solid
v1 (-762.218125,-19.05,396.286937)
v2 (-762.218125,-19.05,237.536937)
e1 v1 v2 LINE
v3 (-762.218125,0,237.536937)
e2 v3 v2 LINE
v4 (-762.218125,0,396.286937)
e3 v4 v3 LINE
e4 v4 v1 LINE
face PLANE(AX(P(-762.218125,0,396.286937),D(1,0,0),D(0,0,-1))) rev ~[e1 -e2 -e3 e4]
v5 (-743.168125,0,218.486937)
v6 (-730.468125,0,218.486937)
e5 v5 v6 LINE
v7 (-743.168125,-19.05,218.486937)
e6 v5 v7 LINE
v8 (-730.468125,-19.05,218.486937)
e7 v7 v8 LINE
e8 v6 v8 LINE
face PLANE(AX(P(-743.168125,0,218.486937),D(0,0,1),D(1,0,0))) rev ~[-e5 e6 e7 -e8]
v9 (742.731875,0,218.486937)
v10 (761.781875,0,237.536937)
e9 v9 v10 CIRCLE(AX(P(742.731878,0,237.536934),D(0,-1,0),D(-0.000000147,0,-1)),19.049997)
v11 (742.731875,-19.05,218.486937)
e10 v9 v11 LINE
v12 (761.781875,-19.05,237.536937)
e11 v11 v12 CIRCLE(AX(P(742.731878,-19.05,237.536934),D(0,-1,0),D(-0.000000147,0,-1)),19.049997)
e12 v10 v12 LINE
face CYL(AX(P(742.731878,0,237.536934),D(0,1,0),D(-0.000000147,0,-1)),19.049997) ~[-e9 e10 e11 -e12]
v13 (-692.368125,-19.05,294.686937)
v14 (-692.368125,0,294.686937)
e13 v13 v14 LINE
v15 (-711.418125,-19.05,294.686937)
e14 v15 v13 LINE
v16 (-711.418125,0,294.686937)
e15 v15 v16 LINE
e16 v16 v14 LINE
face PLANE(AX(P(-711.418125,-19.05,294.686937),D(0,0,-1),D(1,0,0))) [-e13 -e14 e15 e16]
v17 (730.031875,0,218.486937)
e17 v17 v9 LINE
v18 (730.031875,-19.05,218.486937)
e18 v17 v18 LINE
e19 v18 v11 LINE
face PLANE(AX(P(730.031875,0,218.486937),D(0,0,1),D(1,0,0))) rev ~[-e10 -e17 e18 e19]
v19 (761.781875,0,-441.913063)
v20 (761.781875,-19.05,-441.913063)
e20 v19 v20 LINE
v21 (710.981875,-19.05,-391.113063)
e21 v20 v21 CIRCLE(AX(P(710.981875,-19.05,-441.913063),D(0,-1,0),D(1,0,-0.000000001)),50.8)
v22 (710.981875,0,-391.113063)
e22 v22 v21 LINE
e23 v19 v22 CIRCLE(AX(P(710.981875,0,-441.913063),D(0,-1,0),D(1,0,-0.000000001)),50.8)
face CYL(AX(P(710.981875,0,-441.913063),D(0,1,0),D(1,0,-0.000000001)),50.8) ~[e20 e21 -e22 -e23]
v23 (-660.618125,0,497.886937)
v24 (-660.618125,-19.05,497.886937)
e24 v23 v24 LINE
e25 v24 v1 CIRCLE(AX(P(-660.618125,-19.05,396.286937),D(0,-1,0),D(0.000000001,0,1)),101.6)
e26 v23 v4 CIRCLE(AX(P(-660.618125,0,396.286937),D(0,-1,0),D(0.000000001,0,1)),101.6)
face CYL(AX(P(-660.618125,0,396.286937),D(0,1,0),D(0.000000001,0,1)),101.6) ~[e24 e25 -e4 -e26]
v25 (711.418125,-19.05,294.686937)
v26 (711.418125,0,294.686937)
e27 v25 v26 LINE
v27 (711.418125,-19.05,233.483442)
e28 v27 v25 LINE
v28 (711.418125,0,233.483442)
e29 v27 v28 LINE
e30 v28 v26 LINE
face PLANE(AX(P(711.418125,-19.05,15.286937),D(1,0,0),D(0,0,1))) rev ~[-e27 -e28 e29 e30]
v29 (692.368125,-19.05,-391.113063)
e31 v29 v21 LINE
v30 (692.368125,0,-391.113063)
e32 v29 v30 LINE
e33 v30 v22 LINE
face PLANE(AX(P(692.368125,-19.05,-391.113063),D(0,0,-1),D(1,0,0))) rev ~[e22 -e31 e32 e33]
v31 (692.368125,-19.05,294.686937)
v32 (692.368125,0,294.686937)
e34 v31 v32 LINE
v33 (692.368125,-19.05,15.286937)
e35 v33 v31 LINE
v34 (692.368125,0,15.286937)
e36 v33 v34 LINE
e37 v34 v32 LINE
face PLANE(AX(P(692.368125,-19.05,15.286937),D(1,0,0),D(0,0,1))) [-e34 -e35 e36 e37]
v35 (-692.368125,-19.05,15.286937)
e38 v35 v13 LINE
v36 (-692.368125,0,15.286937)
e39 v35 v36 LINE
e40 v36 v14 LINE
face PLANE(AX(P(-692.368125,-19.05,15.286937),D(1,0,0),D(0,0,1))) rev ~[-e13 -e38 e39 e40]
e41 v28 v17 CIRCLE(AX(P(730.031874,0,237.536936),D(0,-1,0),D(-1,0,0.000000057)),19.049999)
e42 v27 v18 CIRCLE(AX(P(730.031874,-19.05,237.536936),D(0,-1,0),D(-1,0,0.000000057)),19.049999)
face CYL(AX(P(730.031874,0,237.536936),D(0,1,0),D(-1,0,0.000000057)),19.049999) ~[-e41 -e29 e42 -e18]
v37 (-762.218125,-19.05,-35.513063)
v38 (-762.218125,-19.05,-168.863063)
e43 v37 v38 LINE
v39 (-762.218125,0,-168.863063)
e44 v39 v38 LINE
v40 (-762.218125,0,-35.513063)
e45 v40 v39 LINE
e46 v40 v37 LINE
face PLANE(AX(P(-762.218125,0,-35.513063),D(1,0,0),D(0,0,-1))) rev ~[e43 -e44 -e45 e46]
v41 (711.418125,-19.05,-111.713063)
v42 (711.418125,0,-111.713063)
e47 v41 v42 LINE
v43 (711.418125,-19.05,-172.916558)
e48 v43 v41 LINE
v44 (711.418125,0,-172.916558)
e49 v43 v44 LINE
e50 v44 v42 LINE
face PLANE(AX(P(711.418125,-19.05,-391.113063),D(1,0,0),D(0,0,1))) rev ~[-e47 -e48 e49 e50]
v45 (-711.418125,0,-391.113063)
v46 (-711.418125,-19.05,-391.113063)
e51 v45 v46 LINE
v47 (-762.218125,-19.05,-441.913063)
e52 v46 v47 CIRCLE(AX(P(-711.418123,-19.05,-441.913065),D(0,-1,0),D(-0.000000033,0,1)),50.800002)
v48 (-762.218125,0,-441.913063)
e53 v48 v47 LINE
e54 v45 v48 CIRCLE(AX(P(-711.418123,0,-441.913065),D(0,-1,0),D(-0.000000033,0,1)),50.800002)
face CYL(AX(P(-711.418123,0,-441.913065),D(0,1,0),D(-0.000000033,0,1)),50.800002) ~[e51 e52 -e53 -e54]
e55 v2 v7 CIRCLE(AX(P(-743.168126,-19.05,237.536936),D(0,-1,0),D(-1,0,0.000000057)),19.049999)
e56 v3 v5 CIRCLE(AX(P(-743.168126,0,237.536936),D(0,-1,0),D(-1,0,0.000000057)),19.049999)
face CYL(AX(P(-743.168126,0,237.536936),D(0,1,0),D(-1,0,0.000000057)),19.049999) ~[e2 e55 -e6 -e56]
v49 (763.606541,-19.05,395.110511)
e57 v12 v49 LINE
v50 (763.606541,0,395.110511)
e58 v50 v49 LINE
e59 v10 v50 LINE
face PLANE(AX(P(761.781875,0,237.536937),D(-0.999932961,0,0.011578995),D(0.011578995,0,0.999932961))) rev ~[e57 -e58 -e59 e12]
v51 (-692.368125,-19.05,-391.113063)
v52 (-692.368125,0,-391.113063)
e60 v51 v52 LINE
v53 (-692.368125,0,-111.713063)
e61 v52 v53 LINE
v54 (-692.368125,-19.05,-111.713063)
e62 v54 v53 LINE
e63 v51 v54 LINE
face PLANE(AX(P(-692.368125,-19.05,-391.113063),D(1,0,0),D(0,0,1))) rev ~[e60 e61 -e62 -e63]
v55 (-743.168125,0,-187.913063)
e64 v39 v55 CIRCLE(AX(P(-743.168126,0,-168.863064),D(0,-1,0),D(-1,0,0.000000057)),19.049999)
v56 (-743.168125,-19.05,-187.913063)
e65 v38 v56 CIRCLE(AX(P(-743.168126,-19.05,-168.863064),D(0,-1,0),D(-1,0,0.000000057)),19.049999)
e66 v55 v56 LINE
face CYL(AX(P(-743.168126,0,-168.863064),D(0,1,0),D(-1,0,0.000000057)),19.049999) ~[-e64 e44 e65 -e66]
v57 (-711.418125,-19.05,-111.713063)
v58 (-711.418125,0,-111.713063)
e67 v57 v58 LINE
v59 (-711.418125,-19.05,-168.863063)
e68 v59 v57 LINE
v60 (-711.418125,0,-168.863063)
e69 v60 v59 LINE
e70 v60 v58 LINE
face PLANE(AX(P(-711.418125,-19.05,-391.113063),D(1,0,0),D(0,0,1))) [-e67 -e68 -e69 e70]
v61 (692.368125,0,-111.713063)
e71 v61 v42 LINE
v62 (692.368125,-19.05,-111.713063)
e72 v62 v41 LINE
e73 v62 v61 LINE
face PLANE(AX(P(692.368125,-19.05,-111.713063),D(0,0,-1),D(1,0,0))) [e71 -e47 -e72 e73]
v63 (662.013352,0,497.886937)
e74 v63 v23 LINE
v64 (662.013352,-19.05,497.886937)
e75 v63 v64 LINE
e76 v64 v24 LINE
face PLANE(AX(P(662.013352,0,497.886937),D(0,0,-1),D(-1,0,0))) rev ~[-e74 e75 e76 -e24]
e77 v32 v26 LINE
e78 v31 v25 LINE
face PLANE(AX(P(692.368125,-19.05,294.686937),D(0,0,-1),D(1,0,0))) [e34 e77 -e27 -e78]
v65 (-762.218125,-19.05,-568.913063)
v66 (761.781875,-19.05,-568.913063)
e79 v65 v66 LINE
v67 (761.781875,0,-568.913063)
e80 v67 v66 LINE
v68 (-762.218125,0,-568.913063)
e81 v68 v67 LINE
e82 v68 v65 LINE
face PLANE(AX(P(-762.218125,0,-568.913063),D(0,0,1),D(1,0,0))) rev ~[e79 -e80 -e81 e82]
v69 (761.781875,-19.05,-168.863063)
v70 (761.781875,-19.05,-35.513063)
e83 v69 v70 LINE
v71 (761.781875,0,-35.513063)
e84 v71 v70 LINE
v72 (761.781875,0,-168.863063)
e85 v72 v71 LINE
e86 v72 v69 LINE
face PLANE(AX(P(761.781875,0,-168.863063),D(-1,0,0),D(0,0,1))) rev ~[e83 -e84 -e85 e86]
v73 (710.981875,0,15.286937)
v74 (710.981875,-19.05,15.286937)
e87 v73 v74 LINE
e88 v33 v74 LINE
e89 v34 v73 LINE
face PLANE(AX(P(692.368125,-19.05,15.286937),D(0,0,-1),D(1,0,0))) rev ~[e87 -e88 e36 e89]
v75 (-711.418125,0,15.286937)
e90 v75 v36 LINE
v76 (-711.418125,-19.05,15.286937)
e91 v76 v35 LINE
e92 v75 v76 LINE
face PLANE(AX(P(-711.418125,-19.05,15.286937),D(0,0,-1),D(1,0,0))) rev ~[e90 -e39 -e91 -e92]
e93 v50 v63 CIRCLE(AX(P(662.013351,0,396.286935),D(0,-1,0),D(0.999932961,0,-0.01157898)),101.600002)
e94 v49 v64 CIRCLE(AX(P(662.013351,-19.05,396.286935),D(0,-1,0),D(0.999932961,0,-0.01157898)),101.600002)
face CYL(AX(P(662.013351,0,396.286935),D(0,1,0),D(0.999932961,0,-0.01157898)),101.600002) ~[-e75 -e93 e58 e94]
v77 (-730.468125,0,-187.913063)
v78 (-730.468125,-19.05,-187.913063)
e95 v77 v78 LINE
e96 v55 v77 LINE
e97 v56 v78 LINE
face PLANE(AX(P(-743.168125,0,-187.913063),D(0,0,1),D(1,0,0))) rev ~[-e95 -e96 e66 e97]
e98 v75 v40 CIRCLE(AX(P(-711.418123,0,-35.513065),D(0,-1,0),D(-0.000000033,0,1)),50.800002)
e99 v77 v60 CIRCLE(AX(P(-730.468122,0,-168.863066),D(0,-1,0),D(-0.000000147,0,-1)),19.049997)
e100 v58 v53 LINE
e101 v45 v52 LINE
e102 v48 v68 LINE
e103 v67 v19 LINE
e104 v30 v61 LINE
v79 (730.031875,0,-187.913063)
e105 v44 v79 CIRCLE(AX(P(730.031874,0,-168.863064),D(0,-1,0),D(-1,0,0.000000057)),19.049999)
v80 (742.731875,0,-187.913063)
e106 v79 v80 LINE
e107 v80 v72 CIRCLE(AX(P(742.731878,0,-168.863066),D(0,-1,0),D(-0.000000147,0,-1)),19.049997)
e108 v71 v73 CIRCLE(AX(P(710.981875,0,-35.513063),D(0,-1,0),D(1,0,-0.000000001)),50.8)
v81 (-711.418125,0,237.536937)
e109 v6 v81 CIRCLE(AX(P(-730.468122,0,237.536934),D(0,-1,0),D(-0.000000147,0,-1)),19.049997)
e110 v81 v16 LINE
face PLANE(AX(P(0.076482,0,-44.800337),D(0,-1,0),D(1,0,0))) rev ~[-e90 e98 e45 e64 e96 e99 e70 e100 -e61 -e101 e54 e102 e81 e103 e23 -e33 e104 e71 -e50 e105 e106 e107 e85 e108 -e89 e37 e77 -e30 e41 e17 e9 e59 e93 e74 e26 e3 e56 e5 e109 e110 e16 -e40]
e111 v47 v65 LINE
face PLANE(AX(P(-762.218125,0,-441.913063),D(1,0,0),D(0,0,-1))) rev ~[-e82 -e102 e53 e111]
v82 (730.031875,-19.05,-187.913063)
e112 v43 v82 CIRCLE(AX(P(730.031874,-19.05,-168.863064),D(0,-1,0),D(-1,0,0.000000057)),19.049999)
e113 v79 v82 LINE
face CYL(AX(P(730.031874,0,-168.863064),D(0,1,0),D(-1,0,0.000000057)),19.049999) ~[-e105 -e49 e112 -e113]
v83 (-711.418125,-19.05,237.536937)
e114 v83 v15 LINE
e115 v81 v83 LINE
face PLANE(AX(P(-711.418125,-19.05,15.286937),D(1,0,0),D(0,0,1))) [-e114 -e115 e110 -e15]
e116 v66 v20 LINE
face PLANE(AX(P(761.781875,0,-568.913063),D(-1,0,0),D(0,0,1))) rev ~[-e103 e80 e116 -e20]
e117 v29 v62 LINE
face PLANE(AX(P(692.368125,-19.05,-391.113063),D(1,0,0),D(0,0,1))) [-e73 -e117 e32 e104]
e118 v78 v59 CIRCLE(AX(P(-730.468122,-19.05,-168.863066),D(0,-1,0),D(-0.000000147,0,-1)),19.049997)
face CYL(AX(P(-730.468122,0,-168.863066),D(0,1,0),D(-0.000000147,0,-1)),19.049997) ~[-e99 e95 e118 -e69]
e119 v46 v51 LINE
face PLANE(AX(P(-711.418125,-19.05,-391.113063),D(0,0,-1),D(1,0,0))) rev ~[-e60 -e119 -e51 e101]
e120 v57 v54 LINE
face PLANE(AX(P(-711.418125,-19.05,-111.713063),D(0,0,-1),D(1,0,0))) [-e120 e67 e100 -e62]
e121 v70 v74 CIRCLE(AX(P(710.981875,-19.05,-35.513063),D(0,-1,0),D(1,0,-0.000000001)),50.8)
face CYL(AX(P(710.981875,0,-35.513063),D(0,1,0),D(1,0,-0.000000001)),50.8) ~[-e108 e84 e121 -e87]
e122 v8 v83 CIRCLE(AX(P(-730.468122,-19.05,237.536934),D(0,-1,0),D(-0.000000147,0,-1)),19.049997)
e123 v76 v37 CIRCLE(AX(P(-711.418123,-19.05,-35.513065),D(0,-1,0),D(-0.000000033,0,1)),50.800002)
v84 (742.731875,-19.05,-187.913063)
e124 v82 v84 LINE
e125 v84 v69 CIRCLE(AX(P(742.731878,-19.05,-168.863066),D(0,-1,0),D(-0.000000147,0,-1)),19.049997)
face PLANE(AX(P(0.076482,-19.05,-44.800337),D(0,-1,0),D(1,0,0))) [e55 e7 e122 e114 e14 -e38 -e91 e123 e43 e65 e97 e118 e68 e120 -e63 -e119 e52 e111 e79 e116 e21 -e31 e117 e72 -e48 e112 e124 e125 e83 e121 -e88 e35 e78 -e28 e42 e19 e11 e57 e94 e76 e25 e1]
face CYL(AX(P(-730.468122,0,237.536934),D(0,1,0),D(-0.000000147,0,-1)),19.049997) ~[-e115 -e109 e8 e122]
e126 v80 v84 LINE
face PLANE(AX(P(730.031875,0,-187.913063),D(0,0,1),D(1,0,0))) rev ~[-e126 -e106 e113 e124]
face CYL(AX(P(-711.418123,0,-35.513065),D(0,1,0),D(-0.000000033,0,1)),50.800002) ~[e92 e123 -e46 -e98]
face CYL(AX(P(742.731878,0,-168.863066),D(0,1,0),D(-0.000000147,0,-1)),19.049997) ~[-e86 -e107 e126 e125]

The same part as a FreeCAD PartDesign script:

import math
import FreeCAD as App
import Part
import Sketcher
Q = App.Units.Quantity

doc = App.newDocument("Part")
body = doc.addObject("PartDesign::Body", "Body")

# Sketch on XZ plane
sketch1 = doc.addObject("Sketcher::SketchObject", "Sketch")
body.addObject(sketch1)
sketch1.AttachmentSupport = (doc.XZ_Plane, [""])
sketch1.MapMode = "FlatFace"
sketch1.addGeometry([
    Part.LineSegment(App.Vector(-743, 218, 0), App.Vector(-730, 218, 0)),  # 0
    Part.ArcOfCircle(Part.Circle(App.Vector(-730, 238, 0), App.Vector(0, 0, 1), 19), math.radians(-90), math.radians(0)),  # 1
    Part.LineSegment(App.Vector(-711, 238, 0), App.Vector(-711, 15, 0)),  # 2
    Part.ArcOfCircle(Part.Circle(App.Vector(-711, -36, 0), App.Vector(0, 0, 1), 51), math.radians(90), math.radians(180)),  # 3
    Part.LineSegment(App.Vector(-762, -36, 0), App.Vector(-762, -169, 0)),  # 4
    Part.ArcOfCircle(Part.Circle(App.Vector(-743, -169, 0), App.Vector(0, 0, 1), 19), math.radians(180), math.radians(270)),  # 5
    Part.LineSegment(App.Vector(-743, -188, 0), App.Vector(-730, -188, 0)),  # 6
    Part.ArcOfCircle(Part.Circle(App.Vector(-730, -169, 0), App.Vector(0, 0, 1), 19), math.radians(-90), math.radians(0)),  # 7
    Part.LineSegment(App.Vector(-711, -169, 0), App.Vector(-711, -391, 0)),  # 8
    Part.ArcOfCircle(Part.Circle(App.Vector(-711, -442, 0), App.Vector(0, 0, 1), 51), math.radians(90), math.radians(180)),  # 9
    Part.LineSegment(App.Vector(-762, -442, 0), App.Vector(-762, -569, 0)),  # 10
    Part.LineSegment(App.Vector(-762, -569, 0), App.Vector(762, -569, 0)),  # 11
    Part.LineSegment(App.Vector(762, -569, 0), App.Vector(762, -442, 0)),  # 12
    Part.ArcOfCircle(Part.Circle(App.Vector(711, -442, 0), App.Vector(0, 0, 1), 51), math.radians(0), math.radians(90)),  # 13
    Part.LineSegment(App.Vector(711, -391, 0), App.Vector(711, -169, 0)),  # 14
    Part.ArcOfCircle(Part.Circle(App.Vector(730, -169, 0), App.Vector(0, 0, 1), 19), math.radians(180), math.radians(270)),  # 15
    Part.LineSegment(App.Vector(730, -188, 0), App.Vector(743, -188, 0)),  # 16
    Part.ArcOfCircle(Part.Circle(App.Vector(743, -169, 0), App.Vector(0, 0, 1), 19), math.radians(-90), math.radians(0)),  # 17
    Part.LineSegment(App.Vector(762, -169, 0), App.Vector(762, -36, 0)),  # 18
    Part.ArcOfCircle(Part.Circle(App.Vector(711, -36, 0), App.Vector(0, 0, 1), 51), math.radians(0), math.radians(90)),  # 19
    Part.LineSegment(App.Vector(711, 15, 0), App.Vector(711, 238, 0)),  # 20
    Part.ArcOfCircle(Part.Circle(App.Vector(730, 238, 0), App.Vector(0, 0, 1), 19), math.radians(180), math.radians(270)),  # 21
    Part.LineSegment(App.Vector(730, 218, 0), App.Vector(743, 218, 0)),  # 22
    Part.ArcOfCircle(Part.Circle(App.Vector(743, 238, 0), App.Vector(0, 0, 1), 19), math.radians(-90), math.radians(0)),  # 23
    Part.LineSegment(App.Vector(762, 238, 0), App.Vector(764, 395, 0)),  # 24
    Part.ArcOfCircle(Part.Circle(App.Vector(662, 396, 0), App.Vector(0, 0, 1), 102), math.radians(-1), math.radians(90)),  # 25
    Part.LineSegment(App.Vector(662, 498, 0), App.Vector(-661, 498, 0)),  # 26
    Part.ArcOfCircle(Part.Circle(App.Vector(-661, 396, 0), App.Vector(0, 0, 1), 102), math.radians(90), math.radians(180)),  # 27
    Part.LineSegment(App.Vector(-762, 396, 0), App.Vector(-762, 238, 0)),  # 28
    Part.ArcOfCircle(Part.Circle(App.Vector(-743, 238, 0), App.Vector(0, 0, 1), 19), math.radians(180), math.radians(270)),  # 29
], False)
sketch1.addConstraint([
    Sketcher.Constraint("Tangent", 0, 2, 1, 1),
    Sketcher.Constraint("Tangent", 1, 2, 2, 1),
    Sketcher.Constraint("Coincident", 2, 2, 3, 1),
    Sketcher.Constraint("Tangent", 3, 2, 4, 1),
    Sketcher.Constraint("Tangent", 4, 2, 5, 1),
    Sketcher.Constraint("Tangent", 5, 2, 6, 1),
    Sketcher.Constraint("Tangent", 6, 2, 7, 1),
    Sketcher.Constraint("Tangent", 7, 2, 8, 1),
    Sketcher.Constraint("Coincident", 8, 2, 9, 1),
    Sketcher.Constraint("Tangent", 9, 2, 10, 1),
    Sketcher.Constraint("Coincident", 10, 2, 11, 1),
    Sketcher.Constraint("Coincident", 11, 2, 12, 1),
    Sketcher.Constraint("Tangent", 12, 2, 13, 1),
    Sketcher.Constraint("Coincident", 13, 2, 14, 1),
    Sketcher.Constraint("Tangent", 14, 2, 15, 1),
    Sketcher.Constraint("Tangent", 15, 2, 16, 1),
    Sketcher.Constraint("Tangent", 16, 2, 17, 1),
    Sketcher.Constraint("Tangent", 17, 2, 18, 1),
    Sketcher.Constraint("Tangent", 18, 2, 19, 1),
    Sketcher.Constraint("Coincident", 19, 2, 20, 1),
    Sketcher.Constraint("Tangent", 20, 2, 21, 1),
    Sketcher.Constraint("Tangent", 21, 2, 22, 1),
    Sketcher.Constraint("Tangent", 22, 2, 23, 1),
    Sketcher.Constraint("Coincident", 23, 2, 24, 1),
    Sketcher.Constraint("Tangent", 24, 2, 25, 1),
    Sketcher.Constraint("Tangent", 25, 2, 26, 1),
    Sketcher.Constraint("Tangent", 26, 2, 27, 1),
    Sketcher.Constraint("Tangent", 27, 2, 28, 1),
    Sketcher.Constraint("Tangent", 28, 2, 29, 1),
    Sketcher.Constraint("Tangent", 29, 2, 0, 1),
    Sketcher.Constraint("Horizontal", 0),
    Sketcher.Constraint("Vertical", 2),
    Sketcher.Constraint("Vertical", 4),
    Sketcher.Constraint("Horizontal", 6),
    Sketcher.Constraint("Vertical", 8),
    Sketcher.Constraint("Vertical", 10),
    Sketcher.Constraint("Horizontal", 11),
    Sketcher.Constraint("Vertical", 12),
    Sketcher.Constraint("Vertical", 14),
    Sketcher.Constraint("Horizontal", 16),
    Sketcher.Constraint("Vertical", 18),
    Sketcher.Constraint("Vertical", 20),
    Sketcher.Constraint("Horizontal", 22),
    Sketcher.Constraint("Horizontal", 26),
    Sketcher.Constraint("Vertical", 28),
    Sketcher.Constraint("Equal", 1, 5),
    Sketcher.Constraint("Equal", 5, 7),
    Sketcher.Constraint("Equal", 3, 9),
    Sketcher.Constraint("Equal", 9, 13),
    Sketcher.Constraint("Equal", 7, 15),
    Sketcher.Constraint("Equal", 15, 17),
    Sketcher.Constraint("Equal", 13, 19),
    Sketcher.Constraint("Equal", 17, 21),
    Sketcher.Constraint("Equal", 21, 23),
    Sketcher.Constraint("Equal", 25, 27),
    Sketcher.Constraint("Equal", 23, 29),
    Sketcher.Constraint("Horizontal", 9, 3, 13, 3),
    Sketcher.Constraint("Horizontal", 7, 3, 15, 3),
    Sketcher.Constraint("Horizontal", 3, 3, 19, 3),
    Sketcher.Constraint("Horizontal", 1, 3, 21, 3),
    Sketcher.Constraint("Horizontal", 20, 2, 23, 2),
    Sketcher.Constraint("Vertical", 1, 3, 7, 3),
    Sketcher.Constraint("Vertical", 3, 3, 9, 3),
    Sketcher.Constraint("Vertical", 13, 3, 19, 3),
    Sketcher.Constraint("Vertical", 15, 3, 21, 3),
    Sketcher.Constraint("Vertical", 17, 3, 23, 3),
    Sketcher.Constraint("Vertical", 5, 3, 29, 3),
    Sketcher.Constraint("Vertical", 9, 3, 1, 2),
    Sketcher.Constraint("Vertical", 19, 3, 13, 2),
    Sketcher.Constraint("Equal", 2, 8),
    Sketcher.Constraint("Radius", 3, Q("2.0000001 in")),
    Sketcher.Constraint("Radius", 25, Q("4.0000001 in")),
    Sketcher.Constraint("DistanceX", 11, 1, 11, 2, Q("60 in")),
    Sketcher.Constraint("DistanceY", 10, 2, 10, 1, Q("5 in")),
    Sketcher.Constraint("Radius", 1, Q("0.7499999 in")),
    Sketcher.Constraint("DistanceY", 5, 3, 1, 3, Q("15.9999999 in")),
    Sketcher.Constraint("DistanceY", 19, 3, 25, 3, Q("16.9999999 in")),
    Sketcher.Constraint("DistanceY", 0, 2, 27, 3, Q("7 in")),
    Sketcher.Constraint("Distance", 24, Q("6.2040999 in")),
    Sketcher.Constraint("DistanceX", -1, 1, 25, 3, 662.013351),
    Sketcher.Constraint("DistanceY", -1, 1, 24, 2, 395.110511),
])
pad1 = doc.addObject("PartDesign::Pad", "Pad")
body.addObject(pad1)
pad1.Profile = sketch1
pad1.Length = Q("0.75 in")

# Sketch on XZ plane
sketch2 = doc.addObject("Sketcher::SketchObject", "Sketch001")
body.addObject(sketch2)
sketch2.AttachmentSupport = (doc.XZ_Plane, [""])
sketch2.MapMode = "FlatFace"
sketch2.AttachmentOffset = App.Placement(App.Vector(0, 0, 0.75 * 25.4), App.Rotation())
sketch2.addGeometry([
    Part.LineSegment(App.Vector(-711, 295, 0), App.Vector(-711, 15, 0)),  # 0
    Part.LineSegment(App.Vector(-711, 15, 0), App.Vector(-692, 15, 0)),  # 1
    Part.LineSegment(App.Vector(-692, 15, 0), App.Vector(-692, 295, 0)),  # 2
    Part.LineSegment(App.Vector(-692, 295, 0), App.Vector(-711, 295, 0)),  # 3
    Part.LineSegment(App.Vector(-711, -112, 0), App.Vector(-711, -391, 0)),  # 4
    Part.LineSegment(App.Vector(-711, -391, 0), App.Vector(-692, -391, 0)),  # 5
    Part.LineSegment(App.Vector(-692, -391, 0), App.Vector(-692, -112, 0)),  # 6
    Part.LineSegment(App.Vector(-692, -112, 0), App.Vector(-711, -112, 0)),  # 7
    Part.LineSegment(App.Vector(692, 295, 0), App.Vector(692, 15, 0)),  # 8
    Part.LineSegment(App.Vector(692, 15, 0), App.Vector(711, 15, 0)),  # 9
    Part.LineSegment(App.Vector(711, 15, 0), App.Vector(711, 295, 0)),  # 10
    Part.LineSegment(App.Vector(711, 295, 0), App.Vector(692, 295, 0)),  # 11
    Part.LineSegment(App.Vector(692, -112, 0), App.Vector(692, -391, 0)),  # 12
    Part.LineSegment(App.Vector(692, -391, 0), App.Vector(711, -391, 0)),  # 13
    Part.LineSegment(App.Vector(711, -391, 0), App.Vector(711, -112, 0)),  # 14
    Part.LineSegment(App.Vector(711, -112, 0), App.Vector(692, -112, 0)),  # 15
], False)
sketch2.addConstraint([
    Sketcher.Constraint("Coincident", 0, 2, 1, 1),
    Sketcher.Constraint("Coincident", 1, 2, 2, 1),
    Sketcher.Constraint("Coincident", 2, 2, 3, 1),
    Sketcher.Constraint("Coincident", 3, 2, 0, 1),
    Sketcher.Constraint("Coincident", 4, 2, 5, 1),
    Sketcher.Constraint("Coincident", 5, 2, 6, 1),
    Sketcher.Constraint("Coincident", 6, 2, 7, 1),
    Sketcher.Constraint("Coincident", 7, 2, 4, 1),
    Sketcher.Constraint("Coincident", 8, 2, 9, 1),
    Sketcher.Constraint("Coincident", 9, 2, 10, 1),
    Sketcher.Constraint("Coincident", 10, 2, 11, 1),
    Sketcher.Constraint("Coincident", 11, 2, 8, 1),
    Sketcher.Constraint("Coincident", 12, 2, 13, 1),
    Sketcher.Constraint("Coincident", 13, 2, 14, 1),
    Sketcher.Constraint("Coincident", 14, 2, 15, 1),
    Sketcher.Constraint("Coincident", 15, 2, 12, 1),
    Sketcher.Constraint("Vertical", 0),
    Sketcher.Constraint("Horizontal", 1),
    Sketcher.Constraint("Vertical", 2),
    Sketcher.Constraint("Horizontal", 3),
    Sketcher.Constraint("Vertical", 4),
    Sketcher.Constraint("Horizontal", 5),
    Sketcher.Constraint("Vertical", 6),
    Sketcher.Constraint("Horizontal", 7),
    Sketcher.Constraint("Vertical", 8),
    Sketcher.Constraint("Horizontal", 9),
    Sketcher.Constraint("Vertical", 10),
    Sketcher.Constraint("Horizontal", 11),
    Sketcher.Constraint("Vertical", 12),
    Sketcher.Constraint("Horizontal", 13),
    Sketcher.Constraint("Vertical", 14),
    Sketcher.Constraint("Horizontal", 15),
    Sketcher.Constraint("Symmetric", 1, 2, 8, 2, -2),
    Sketcher.Constraint("Symmetric", 3, 2, 10, 2, -2),
    Sketcher.Constraint("Symmetric", 5, 2, 12, 2, -2),
    Sketcher.Constraint("Symmetric", 7, 2, 14, 2, -2),
    Sketcher.Constraint("Vertical", 3, 2, 4, 2),
    Sketcher.Constraint("Vertical", 2, 2, 5, 2),
    Sketcher.Constraint("Equal", 2, 4),
    Sketcher.Constraint("DistanceY", 0, 2, 0, 1, Q("11 in")),
    Sketcher.Constraint("DistanceY", 4, 2, 0, 2, Q("16 in")),
    Sketcher.Constraint("DistanceX", 1, 1, 1, 2, Q("0.75 in")),
    Sketcher.Constraint("DistanceX", 1, 2, 8, 2, 1384.73625),
    Sketcher.Constraint("DistanceY", -1, 1, 0, 2, 15.286937),
])
pocket1 = doc.addObject("PartDesign::Pocket", "Pocket")
body.addObject(pocket1)
pocket1.Profile = sketch2
pocket1.Type = "ThroughAll"

doc.recompute()
